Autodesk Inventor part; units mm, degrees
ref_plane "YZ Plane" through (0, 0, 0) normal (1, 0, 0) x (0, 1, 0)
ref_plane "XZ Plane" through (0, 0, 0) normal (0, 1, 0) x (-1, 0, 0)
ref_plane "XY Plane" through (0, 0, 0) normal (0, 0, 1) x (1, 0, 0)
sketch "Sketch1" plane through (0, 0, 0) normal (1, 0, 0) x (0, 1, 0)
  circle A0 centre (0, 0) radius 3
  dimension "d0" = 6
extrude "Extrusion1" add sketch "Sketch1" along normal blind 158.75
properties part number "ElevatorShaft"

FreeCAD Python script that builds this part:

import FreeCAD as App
import Part
import Sketcher
from FreeCAD import Vector
Q = App.Units.Quantity

doc = App.newDocument("Part")
body = doc.addObject("PartDesign::Body", "Body")

# Sketch on YZ plane
sketch1 = body.newObject("Sketcher::SketchObject", "Sketch")
sketch1.AttachmentSupport = (doc.getObject("YZ_Plane"), [""])
sketch1.MapMode = "FlatFace"
sketch1.addGeometry(Part.Circle(Vector(0, 0, 0), Vector(0, 0, 1), 3), False)
sketch1.addConstraint([
    Sketcher.Constraint("Coincident", 0, 3, -1, 1),
    Sketcher.Constraint("Diameter", 0, Q("6 mm")),
])
pad1 = body.newObject("PartDesign::Pad", "Pad")
pad1.Profile = sketch1
pad1.Length = 158.75

doc.recompute()
